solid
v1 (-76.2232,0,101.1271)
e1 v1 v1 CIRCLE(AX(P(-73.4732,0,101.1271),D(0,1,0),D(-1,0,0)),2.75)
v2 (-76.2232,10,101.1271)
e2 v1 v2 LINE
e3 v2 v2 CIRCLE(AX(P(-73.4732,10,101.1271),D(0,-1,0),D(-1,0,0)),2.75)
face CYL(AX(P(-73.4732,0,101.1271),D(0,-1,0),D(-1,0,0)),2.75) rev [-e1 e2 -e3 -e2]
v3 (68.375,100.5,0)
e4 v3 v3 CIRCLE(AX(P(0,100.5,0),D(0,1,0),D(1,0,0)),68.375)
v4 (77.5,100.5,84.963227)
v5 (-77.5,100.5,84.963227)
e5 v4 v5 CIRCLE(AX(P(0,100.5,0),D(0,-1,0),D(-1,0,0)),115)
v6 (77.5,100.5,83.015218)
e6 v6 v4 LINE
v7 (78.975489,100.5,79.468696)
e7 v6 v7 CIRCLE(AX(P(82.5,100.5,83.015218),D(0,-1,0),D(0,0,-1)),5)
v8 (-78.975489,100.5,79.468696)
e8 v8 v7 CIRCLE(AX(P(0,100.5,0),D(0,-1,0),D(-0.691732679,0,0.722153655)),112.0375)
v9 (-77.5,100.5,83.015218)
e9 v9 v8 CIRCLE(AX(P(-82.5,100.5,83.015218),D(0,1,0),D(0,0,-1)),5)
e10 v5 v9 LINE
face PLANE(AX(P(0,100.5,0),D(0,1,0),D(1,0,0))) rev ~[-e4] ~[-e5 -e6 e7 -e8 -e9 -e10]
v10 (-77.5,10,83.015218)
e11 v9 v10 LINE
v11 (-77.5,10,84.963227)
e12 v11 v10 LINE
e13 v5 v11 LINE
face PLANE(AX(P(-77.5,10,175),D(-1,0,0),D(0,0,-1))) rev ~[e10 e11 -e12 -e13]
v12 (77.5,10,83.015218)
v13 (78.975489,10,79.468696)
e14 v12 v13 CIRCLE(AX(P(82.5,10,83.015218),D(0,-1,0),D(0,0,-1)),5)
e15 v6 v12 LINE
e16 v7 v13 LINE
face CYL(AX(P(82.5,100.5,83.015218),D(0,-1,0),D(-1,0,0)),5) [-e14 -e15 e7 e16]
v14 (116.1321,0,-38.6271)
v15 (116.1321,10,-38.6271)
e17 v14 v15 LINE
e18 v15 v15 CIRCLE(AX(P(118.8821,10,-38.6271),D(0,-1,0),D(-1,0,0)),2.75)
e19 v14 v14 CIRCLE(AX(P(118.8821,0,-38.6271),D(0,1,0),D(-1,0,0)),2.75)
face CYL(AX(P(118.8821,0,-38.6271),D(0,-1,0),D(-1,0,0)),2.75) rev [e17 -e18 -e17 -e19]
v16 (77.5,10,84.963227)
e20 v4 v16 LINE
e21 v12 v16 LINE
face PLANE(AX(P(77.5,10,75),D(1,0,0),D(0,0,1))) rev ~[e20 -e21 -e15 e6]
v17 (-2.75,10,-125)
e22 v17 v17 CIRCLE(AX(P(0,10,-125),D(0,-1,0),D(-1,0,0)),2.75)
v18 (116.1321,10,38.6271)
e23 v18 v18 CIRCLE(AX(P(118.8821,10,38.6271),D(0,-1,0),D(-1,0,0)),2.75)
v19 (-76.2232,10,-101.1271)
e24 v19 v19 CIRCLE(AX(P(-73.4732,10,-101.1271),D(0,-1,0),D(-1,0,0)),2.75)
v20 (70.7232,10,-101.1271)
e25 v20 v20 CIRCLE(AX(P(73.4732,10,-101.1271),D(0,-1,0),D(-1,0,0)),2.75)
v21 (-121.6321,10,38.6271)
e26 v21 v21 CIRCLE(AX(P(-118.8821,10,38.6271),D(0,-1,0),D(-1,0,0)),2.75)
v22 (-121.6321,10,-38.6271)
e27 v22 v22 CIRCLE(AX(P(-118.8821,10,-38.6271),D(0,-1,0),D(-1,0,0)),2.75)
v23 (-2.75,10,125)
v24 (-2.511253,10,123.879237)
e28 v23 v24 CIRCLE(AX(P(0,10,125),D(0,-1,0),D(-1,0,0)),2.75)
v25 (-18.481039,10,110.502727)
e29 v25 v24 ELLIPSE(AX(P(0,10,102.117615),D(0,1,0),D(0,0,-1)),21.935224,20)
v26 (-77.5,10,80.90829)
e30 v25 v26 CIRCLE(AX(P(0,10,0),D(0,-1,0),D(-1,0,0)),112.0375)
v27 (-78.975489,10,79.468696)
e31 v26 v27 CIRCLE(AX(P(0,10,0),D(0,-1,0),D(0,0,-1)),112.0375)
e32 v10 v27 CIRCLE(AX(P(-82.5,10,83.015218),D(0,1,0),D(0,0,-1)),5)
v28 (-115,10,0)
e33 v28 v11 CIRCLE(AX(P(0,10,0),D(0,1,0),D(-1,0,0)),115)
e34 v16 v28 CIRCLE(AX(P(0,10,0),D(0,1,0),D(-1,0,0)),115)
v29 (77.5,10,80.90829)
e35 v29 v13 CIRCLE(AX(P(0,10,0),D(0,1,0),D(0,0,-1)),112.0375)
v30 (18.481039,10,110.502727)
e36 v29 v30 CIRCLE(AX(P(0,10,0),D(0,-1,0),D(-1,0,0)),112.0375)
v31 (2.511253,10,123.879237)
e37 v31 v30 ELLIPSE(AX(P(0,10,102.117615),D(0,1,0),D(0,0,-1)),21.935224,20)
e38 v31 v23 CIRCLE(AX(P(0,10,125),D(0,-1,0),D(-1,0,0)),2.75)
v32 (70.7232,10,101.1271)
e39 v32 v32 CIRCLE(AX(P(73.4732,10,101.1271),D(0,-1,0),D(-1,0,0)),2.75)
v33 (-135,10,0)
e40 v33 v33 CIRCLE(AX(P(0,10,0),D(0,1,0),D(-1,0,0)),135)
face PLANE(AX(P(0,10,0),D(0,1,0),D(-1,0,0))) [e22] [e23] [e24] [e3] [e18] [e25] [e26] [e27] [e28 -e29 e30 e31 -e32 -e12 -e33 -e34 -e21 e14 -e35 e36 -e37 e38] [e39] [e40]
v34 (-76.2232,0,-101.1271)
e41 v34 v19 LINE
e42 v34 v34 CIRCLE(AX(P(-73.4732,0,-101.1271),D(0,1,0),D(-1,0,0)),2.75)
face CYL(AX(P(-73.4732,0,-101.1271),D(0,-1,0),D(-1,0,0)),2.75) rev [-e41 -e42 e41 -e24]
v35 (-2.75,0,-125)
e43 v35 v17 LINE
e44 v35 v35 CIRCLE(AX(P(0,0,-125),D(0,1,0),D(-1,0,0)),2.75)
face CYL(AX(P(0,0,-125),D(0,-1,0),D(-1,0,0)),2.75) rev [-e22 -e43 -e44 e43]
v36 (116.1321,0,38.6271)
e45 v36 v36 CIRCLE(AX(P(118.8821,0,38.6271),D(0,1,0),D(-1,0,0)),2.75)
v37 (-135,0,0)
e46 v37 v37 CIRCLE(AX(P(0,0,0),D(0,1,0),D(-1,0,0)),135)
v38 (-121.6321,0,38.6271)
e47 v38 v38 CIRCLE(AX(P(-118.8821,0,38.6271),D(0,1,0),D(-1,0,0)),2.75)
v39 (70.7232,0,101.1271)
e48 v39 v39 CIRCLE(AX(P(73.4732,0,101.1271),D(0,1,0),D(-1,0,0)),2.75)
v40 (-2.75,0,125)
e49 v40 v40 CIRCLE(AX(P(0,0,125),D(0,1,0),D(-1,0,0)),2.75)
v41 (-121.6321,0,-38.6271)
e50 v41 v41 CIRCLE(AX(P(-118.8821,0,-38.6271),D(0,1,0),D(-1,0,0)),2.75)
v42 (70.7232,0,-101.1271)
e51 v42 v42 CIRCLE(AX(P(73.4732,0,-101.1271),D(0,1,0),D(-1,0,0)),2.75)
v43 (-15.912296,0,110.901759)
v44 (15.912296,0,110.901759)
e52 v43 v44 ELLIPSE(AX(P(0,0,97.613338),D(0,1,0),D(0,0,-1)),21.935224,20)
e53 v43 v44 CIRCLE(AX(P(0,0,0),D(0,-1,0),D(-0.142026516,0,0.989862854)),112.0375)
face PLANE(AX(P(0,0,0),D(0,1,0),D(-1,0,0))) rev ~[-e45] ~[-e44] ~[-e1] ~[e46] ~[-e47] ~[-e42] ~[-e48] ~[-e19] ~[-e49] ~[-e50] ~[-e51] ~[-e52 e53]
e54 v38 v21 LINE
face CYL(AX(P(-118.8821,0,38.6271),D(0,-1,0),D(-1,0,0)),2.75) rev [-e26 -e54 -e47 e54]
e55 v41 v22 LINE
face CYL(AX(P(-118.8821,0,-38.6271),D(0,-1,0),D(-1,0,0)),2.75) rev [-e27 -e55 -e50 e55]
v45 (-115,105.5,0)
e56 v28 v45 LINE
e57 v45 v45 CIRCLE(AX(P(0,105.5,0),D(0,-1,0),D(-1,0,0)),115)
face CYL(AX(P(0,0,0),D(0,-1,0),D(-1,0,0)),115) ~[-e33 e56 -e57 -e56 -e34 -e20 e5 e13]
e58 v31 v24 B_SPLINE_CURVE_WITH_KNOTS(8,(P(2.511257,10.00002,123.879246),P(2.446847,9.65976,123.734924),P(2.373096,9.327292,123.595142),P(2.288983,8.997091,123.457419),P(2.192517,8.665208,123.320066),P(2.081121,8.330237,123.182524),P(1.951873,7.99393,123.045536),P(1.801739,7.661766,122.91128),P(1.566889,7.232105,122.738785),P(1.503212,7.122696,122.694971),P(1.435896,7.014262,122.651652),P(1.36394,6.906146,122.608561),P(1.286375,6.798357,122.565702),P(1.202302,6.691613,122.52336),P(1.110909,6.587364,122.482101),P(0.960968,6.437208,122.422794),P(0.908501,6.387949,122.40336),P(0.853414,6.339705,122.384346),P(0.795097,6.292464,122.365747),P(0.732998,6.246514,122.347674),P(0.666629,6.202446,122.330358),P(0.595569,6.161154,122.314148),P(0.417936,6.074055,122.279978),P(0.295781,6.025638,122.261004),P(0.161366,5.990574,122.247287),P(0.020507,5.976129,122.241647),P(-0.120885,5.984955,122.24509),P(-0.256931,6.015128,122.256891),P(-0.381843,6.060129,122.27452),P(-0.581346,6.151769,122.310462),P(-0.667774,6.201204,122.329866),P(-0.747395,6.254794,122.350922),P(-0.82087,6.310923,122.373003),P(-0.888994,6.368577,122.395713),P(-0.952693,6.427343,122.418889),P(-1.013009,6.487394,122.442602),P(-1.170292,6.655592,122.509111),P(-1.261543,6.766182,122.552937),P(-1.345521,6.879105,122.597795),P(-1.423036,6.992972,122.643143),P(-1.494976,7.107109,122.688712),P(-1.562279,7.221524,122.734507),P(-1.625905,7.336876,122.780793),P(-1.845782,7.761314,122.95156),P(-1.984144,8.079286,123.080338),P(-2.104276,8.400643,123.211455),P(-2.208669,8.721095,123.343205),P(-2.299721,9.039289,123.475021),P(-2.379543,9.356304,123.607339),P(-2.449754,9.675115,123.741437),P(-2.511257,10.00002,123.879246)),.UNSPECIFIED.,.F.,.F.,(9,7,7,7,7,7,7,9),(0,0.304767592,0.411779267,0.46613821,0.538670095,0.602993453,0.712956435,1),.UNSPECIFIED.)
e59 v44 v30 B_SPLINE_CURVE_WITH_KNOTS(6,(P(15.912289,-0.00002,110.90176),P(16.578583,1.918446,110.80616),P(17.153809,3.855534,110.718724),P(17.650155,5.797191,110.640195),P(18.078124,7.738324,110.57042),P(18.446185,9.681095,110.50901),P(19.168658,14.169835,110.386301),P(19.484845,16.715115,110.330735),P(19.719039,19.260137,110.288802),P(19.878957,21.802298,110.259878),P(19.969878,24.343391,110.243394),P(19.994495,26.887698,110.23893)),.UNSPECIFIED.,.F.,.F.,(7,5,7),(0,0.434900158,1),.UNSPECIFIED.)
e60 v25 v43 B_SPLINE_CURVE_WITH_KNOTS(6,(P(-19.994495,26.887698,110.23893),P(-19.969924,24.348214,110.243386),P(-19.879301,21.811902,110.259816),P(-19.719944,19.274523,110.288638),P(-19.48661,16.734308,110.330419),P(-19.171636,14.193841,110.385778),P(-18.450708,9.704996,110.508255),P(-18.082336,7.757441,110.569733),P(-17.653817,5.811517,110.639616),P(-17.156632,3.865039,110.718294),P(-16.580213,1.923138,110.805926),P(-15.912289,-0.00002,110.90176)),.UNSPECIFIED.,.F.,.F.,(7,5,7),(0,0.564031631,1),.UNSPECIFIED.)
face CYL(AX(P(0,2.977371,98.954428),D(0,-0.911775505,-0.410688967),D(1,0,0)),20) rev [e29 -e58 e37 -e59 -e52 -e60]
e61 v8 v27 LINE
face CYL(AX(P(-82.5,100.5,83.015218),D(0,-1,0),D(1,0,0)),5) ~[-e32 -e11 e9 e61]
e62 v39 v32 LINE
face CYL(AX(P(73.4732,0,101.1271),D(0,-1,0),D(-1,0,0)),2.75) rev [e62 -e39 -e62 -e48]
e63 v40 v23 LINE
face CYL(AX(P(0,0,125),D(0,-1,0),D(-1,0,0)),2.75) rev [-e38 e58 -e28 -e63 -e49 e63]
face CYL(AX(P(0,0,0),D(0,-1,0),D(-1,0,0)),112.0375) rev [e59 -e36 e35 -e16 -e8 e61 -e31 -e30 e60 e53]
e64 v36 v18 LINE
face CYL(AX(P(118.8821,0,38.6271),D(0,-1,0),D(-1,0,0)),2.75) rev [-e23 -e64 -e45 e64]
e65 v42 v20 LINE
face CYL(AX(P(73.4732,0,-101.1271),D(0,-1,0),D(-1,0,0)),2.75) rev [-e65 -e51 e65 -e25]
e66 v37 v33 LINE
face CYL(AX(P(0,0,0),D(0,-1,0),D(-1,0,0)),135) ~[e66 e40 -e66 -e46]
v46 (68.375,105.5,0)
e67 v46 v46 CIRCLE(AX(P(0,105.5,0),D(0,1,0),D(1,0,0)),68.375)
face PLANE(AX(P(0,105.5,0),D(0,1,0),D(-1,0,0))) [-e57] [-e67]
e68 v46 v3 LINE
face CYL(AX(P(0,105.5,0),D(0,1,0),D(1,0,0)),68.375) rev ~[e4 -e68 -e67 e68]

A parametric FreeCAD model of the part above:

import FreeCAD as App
import Part
import Sketcher

V = App.Vector


def edges_at(feature, points):
    """Names of the edges that pass closest to the given points."""
    edges = feature.Shape.Edges
    near = lambda p: min(range(len(edges)), key=lambda i: edges[i].distToShape(Part.Vertex(*p))[0])
    return sorted({f"Edge{near(p) + 1}" for p in points})

doc = App.newDocument("Part")
body = doc.addObject("PartDesign::Body", "Body")

sketch1 = body.newObject("Sketcher::SketchObject", "Sketch")
sketch1.AttachmentSupport = (doc.getObject("XZ_Plane"), [""])
sketch1.MapMode = "FlatFace"
sketch1.addGeometry([
    Part.Circle(V(0, 0, 0), V(0, 0, 1), 135),
    Part.Circle(V(-118.9, 38.6, 0), V(0, 0, 1), 2.8),
    Part.Circle(V(-73.5, 101.1, 0), V(0, 0, 1), 2.8),
    Part.Circle(V(0, 125, 0), V(0, 0, 1), 2.8),
    Part.Circle(V(73.5, 101.1, 0), V(0, 0, 1), 2.8),
    Part.Circle(V(118.9, 38.6, 0), V(0, 0, 1), 2.8),
    Part.Circle(V(118.9, -38.6, 0), V(0, 0, 1), 2.8),
    Part.Circle(V(73.5, -101.1, 0), V(0, 0, 1), 2.8),
    Part.Circle(V(0, -125, 0), V(0, 0, 1), 2.8),
    Part.Circle(V(-73.5, -101.1, 0), V(0, 0, 1), 2.8),
    Part.Circle(V(-118.9, -38.6, 0), V(0, 0, 1), 2.8),
    Part.Circle(V(0, 0, 0), V(0, 0, 1), 115),
], False)
sketch1.addConstraint([
    Sketcher.Constraint("Coincident", 0, 3, -1, 1),
    Sketcher.Constraint("Coincident", 11, 3, -1, 1),
    Sketcher.Constraint("Equal", 1, 2),
    Sketcher.Constraint("Equal", 2, 3),
    Sketcher.Constraint("Equal", 3, 4),
    Sketcher.Constraint("Equal", 4, 5),
    Sketcher.Constraint("Equal", 5, 6),
    Sketcher.Constraint("Equal", 6, 7),
    Sketcher.Constraint("Equal", 7, 8),
    Sketcher.Constraint("Equal", 8, 9),
    Sketcher.Constraint("Equal", 9, 10),
    Sketcher.Constraint("Symmetric", 1, 3, 6, 3, -1, 1),
    Sketcher.Constraint("Symmetric", 2, 3, 7, 3, -1, 1),
    Sketcher.Constraint("Symmetric", 3, 3, 8, 3, -1, 1),
    Sketcher.Constraint("Symmetric", 4, 3, 9, 3, -1, 1),
    Sketcher.Constraint("Symmetric", 5, 3, 10, 3, -1, 1),
    Sketcher.Constraint("Symmetric", 2, 3, 4, 3, -2),
    Sketcher.Constraint("Symmetric", 1, 3, 5, 3, -2),
    Sketcher.Constraint("PointOnObject", 3, 3, -2),
    Sketcher.Constraint("Diameter", 0, 270.0),
    Sketcher.Constraint("Diameter", 11, 230.0),
    Sketcher.Constraint("Diameter", 1, 5.5),
    Sketcher.Constraint("DistanceY", -1, 1, 3, 3, 125.0),
    Sketcher.Constraint("DistanceY", 1, 3, 2, 3, 62.5),
    Sketcher.Constraint("DistanceX", 1, 3, -1, 1, 118.882),
    Sketcher.Constraint("DistanceY", -1, 1, 1, 3, 38.627),
    Sketcher.Constraint("DistanceX", 1, 3, 2, 3, 45.409),
])
pad1 = body.newObject("PartDesign::Pad", "Pad")
pad1.Profile = sketch1
pad1.Length = 10
pad1.Reversed = True

sketch2 = body.newObject("Sketcher::SketchObject", "Sketch001")
sketch2.AttachmentSupport = (doc.getObject("XZ_Plane"), [""])
sketch2.MapMode = "FlatFace"
sketch2.addGeometry([
    Part.Circle(V(0, 0, 0), V(0, 0, 1), 115),
    Part.Circle(V(0, 0, 0), V(0, 0, 1), 112),
], False)
sketch2.addConstraint([
    Sketcher.Constraint("Coincident", 0, 3, -1, 1),
    Sketcher.Constraint("Coincident", 1, 3, -1, 1),
    Sketcher.Constraint("Diameter", 0, 230.0),
    Sketcher.Constraint("Diameter", 1, 224.075),
])
pad2 = body.newObject("PartDesign::Pad", "Pad001")
pad2.Profile = sketch2
pad2.Length = 105.5
pad2.Reversed = True

sketch3 = body.newObject("Sketcher::SketchObject", "Sketch002")
sketch3.AttachmentSupport = (doc.getObject("XZ_Plane"), [""])
sketch3.MapMode = "FlatFace"
sketch3.AttachmentOffset = App.Placement(V(0, 0, -105.5), App.Rotation())
sketch3.addGeometry([
    Part.Circle(V(0, 0, 0), V(0, 0, 1), 115),
    Part.Circle(V(0, 0, 0), V(0, 0, 1), 68),
], False)
sketch3.addConstraint([
    Sketcher.Constraint("Coincident", 0, 3, -1, 1),
    Sketcher.Constraint("Coincident", 1, 3, -1, 1),
    Sketcher.Constraint("Diameter", 0, 230.0),
    Sketcher.Constraint("Diameter", 1, 136.75),
])
pad3 = body.newObject("PartDesign::Pad", "Pad002")
pad3.Profile = sketch3
pad3.Length = 5

sketch4 = body.newObject("Sketcher::SketchObject", "Sketch003")
sketch4.AttachmentSupport = (doc.getObject("XZ_Plane"), [""])
sketch4.MapMode = "FlatFace"
sketch4.AttachmentOffset = App.Placement(V(0, 0, -10), App.Rotation())
sketch4.addGeometry([
    Part.LineSegment(V(77.5, 75, 0), V(-77.5, 75, 0)),
    Part.LineSegment(V(-77.5, 75, 0), V(-77.5, 175, 0)),
    Part.LineSegment(V(-77.5, 175, 0), V(77.5, 175, 0)),
    Part.LineSegment(V(77.5, 175, 0), V(77.5, 75, 0)),
    Part.Circle(V(0, 125, 0), V(0, 0, 1), 2.8),
], False)
sketch4.addConstraint([
    Sketcher.Constraint("Coincident", 0, 2, 1, 1),
    Sketcher.Constraint("Coincident", 1, 2, 2, 1),
    Sketcher.Constraint("Coincident", 2, 2, 3, 1),
    Sketcher.Constraint("Coincident", 3, 2, 0, 1),
    Sketcher.Constraint("Horizontal", 0),
    Sketcher.Constraint("Vertical", 1),
    Sketcher.Constraint("Horizontal", 2),
    Sketcher.Constraint("Vertical", 3),
    Sketcher.Constraint("PointOnObject", 4, 3, -2),
    Sketcher.Constraint("DistanceX", 0, 2, 0, 1, 155.0),
    Sketcher.Constraint("DistanceY", 1, 1, 1, 2, 100.0),
    Sketcher.Constraint("Diameter", 4, 5.5),
    Sketcher.Constraint("DistanceY", -1, 1, 4, 3, 125.0),
    Sketcher.Constraint("DistanceY", -1, 1, 0, 2, 75.0),
    Sketcher.Constraint("DistanceX", 0, 2, -1, 1, 77.5),
])
pocket1 = body.newObject("PartDesign::Pocket", "Pocket")
pocket1.Profile = sketch4
pocket1.Length = 90.5

sketch5 = body.newObject("Sketcher::SketchObject", "Sketch004")
sketch5.Placement = App.Placement(V(16.25, 101.1762, -119.0531), App.Rotation(V(1, 0, 0), V(0, 0.410688967, -0.911775505), V(0, 0.911775505, 0.410688967), "ZXY"))
sketch5.addGeometry(Part.Circle(V(-16, -239, 0), V(0, 0, 1), 20), False)
sketch5.addConstraint([
    Sketcher.Constraint("Diameter", 0, 40.0),
    Sketcher.Constraint("DistanceX", 0, 3, -1, 1, 16.25),
    Sketcher.Constraint("DistanceY", 0, 3, -1, 1, 239.103),
])
pocket2 = body.newObject("PartDesign::Pocket", "Pocket001")
pocket2.Profile = sketch5
pocket2.Length = 52.8625
pocket2.Midplane = True
doc.recompute()

fillet = body.newObject("PartDesign::Fillet", "Fillet")
fillet.Base = (pocket2, edges_at(pocket2, [(-77.5, 55.25, 80.908), (77.5, 55.25, 80.908)]))
fillet.Radius = 5

doc.recompute()
